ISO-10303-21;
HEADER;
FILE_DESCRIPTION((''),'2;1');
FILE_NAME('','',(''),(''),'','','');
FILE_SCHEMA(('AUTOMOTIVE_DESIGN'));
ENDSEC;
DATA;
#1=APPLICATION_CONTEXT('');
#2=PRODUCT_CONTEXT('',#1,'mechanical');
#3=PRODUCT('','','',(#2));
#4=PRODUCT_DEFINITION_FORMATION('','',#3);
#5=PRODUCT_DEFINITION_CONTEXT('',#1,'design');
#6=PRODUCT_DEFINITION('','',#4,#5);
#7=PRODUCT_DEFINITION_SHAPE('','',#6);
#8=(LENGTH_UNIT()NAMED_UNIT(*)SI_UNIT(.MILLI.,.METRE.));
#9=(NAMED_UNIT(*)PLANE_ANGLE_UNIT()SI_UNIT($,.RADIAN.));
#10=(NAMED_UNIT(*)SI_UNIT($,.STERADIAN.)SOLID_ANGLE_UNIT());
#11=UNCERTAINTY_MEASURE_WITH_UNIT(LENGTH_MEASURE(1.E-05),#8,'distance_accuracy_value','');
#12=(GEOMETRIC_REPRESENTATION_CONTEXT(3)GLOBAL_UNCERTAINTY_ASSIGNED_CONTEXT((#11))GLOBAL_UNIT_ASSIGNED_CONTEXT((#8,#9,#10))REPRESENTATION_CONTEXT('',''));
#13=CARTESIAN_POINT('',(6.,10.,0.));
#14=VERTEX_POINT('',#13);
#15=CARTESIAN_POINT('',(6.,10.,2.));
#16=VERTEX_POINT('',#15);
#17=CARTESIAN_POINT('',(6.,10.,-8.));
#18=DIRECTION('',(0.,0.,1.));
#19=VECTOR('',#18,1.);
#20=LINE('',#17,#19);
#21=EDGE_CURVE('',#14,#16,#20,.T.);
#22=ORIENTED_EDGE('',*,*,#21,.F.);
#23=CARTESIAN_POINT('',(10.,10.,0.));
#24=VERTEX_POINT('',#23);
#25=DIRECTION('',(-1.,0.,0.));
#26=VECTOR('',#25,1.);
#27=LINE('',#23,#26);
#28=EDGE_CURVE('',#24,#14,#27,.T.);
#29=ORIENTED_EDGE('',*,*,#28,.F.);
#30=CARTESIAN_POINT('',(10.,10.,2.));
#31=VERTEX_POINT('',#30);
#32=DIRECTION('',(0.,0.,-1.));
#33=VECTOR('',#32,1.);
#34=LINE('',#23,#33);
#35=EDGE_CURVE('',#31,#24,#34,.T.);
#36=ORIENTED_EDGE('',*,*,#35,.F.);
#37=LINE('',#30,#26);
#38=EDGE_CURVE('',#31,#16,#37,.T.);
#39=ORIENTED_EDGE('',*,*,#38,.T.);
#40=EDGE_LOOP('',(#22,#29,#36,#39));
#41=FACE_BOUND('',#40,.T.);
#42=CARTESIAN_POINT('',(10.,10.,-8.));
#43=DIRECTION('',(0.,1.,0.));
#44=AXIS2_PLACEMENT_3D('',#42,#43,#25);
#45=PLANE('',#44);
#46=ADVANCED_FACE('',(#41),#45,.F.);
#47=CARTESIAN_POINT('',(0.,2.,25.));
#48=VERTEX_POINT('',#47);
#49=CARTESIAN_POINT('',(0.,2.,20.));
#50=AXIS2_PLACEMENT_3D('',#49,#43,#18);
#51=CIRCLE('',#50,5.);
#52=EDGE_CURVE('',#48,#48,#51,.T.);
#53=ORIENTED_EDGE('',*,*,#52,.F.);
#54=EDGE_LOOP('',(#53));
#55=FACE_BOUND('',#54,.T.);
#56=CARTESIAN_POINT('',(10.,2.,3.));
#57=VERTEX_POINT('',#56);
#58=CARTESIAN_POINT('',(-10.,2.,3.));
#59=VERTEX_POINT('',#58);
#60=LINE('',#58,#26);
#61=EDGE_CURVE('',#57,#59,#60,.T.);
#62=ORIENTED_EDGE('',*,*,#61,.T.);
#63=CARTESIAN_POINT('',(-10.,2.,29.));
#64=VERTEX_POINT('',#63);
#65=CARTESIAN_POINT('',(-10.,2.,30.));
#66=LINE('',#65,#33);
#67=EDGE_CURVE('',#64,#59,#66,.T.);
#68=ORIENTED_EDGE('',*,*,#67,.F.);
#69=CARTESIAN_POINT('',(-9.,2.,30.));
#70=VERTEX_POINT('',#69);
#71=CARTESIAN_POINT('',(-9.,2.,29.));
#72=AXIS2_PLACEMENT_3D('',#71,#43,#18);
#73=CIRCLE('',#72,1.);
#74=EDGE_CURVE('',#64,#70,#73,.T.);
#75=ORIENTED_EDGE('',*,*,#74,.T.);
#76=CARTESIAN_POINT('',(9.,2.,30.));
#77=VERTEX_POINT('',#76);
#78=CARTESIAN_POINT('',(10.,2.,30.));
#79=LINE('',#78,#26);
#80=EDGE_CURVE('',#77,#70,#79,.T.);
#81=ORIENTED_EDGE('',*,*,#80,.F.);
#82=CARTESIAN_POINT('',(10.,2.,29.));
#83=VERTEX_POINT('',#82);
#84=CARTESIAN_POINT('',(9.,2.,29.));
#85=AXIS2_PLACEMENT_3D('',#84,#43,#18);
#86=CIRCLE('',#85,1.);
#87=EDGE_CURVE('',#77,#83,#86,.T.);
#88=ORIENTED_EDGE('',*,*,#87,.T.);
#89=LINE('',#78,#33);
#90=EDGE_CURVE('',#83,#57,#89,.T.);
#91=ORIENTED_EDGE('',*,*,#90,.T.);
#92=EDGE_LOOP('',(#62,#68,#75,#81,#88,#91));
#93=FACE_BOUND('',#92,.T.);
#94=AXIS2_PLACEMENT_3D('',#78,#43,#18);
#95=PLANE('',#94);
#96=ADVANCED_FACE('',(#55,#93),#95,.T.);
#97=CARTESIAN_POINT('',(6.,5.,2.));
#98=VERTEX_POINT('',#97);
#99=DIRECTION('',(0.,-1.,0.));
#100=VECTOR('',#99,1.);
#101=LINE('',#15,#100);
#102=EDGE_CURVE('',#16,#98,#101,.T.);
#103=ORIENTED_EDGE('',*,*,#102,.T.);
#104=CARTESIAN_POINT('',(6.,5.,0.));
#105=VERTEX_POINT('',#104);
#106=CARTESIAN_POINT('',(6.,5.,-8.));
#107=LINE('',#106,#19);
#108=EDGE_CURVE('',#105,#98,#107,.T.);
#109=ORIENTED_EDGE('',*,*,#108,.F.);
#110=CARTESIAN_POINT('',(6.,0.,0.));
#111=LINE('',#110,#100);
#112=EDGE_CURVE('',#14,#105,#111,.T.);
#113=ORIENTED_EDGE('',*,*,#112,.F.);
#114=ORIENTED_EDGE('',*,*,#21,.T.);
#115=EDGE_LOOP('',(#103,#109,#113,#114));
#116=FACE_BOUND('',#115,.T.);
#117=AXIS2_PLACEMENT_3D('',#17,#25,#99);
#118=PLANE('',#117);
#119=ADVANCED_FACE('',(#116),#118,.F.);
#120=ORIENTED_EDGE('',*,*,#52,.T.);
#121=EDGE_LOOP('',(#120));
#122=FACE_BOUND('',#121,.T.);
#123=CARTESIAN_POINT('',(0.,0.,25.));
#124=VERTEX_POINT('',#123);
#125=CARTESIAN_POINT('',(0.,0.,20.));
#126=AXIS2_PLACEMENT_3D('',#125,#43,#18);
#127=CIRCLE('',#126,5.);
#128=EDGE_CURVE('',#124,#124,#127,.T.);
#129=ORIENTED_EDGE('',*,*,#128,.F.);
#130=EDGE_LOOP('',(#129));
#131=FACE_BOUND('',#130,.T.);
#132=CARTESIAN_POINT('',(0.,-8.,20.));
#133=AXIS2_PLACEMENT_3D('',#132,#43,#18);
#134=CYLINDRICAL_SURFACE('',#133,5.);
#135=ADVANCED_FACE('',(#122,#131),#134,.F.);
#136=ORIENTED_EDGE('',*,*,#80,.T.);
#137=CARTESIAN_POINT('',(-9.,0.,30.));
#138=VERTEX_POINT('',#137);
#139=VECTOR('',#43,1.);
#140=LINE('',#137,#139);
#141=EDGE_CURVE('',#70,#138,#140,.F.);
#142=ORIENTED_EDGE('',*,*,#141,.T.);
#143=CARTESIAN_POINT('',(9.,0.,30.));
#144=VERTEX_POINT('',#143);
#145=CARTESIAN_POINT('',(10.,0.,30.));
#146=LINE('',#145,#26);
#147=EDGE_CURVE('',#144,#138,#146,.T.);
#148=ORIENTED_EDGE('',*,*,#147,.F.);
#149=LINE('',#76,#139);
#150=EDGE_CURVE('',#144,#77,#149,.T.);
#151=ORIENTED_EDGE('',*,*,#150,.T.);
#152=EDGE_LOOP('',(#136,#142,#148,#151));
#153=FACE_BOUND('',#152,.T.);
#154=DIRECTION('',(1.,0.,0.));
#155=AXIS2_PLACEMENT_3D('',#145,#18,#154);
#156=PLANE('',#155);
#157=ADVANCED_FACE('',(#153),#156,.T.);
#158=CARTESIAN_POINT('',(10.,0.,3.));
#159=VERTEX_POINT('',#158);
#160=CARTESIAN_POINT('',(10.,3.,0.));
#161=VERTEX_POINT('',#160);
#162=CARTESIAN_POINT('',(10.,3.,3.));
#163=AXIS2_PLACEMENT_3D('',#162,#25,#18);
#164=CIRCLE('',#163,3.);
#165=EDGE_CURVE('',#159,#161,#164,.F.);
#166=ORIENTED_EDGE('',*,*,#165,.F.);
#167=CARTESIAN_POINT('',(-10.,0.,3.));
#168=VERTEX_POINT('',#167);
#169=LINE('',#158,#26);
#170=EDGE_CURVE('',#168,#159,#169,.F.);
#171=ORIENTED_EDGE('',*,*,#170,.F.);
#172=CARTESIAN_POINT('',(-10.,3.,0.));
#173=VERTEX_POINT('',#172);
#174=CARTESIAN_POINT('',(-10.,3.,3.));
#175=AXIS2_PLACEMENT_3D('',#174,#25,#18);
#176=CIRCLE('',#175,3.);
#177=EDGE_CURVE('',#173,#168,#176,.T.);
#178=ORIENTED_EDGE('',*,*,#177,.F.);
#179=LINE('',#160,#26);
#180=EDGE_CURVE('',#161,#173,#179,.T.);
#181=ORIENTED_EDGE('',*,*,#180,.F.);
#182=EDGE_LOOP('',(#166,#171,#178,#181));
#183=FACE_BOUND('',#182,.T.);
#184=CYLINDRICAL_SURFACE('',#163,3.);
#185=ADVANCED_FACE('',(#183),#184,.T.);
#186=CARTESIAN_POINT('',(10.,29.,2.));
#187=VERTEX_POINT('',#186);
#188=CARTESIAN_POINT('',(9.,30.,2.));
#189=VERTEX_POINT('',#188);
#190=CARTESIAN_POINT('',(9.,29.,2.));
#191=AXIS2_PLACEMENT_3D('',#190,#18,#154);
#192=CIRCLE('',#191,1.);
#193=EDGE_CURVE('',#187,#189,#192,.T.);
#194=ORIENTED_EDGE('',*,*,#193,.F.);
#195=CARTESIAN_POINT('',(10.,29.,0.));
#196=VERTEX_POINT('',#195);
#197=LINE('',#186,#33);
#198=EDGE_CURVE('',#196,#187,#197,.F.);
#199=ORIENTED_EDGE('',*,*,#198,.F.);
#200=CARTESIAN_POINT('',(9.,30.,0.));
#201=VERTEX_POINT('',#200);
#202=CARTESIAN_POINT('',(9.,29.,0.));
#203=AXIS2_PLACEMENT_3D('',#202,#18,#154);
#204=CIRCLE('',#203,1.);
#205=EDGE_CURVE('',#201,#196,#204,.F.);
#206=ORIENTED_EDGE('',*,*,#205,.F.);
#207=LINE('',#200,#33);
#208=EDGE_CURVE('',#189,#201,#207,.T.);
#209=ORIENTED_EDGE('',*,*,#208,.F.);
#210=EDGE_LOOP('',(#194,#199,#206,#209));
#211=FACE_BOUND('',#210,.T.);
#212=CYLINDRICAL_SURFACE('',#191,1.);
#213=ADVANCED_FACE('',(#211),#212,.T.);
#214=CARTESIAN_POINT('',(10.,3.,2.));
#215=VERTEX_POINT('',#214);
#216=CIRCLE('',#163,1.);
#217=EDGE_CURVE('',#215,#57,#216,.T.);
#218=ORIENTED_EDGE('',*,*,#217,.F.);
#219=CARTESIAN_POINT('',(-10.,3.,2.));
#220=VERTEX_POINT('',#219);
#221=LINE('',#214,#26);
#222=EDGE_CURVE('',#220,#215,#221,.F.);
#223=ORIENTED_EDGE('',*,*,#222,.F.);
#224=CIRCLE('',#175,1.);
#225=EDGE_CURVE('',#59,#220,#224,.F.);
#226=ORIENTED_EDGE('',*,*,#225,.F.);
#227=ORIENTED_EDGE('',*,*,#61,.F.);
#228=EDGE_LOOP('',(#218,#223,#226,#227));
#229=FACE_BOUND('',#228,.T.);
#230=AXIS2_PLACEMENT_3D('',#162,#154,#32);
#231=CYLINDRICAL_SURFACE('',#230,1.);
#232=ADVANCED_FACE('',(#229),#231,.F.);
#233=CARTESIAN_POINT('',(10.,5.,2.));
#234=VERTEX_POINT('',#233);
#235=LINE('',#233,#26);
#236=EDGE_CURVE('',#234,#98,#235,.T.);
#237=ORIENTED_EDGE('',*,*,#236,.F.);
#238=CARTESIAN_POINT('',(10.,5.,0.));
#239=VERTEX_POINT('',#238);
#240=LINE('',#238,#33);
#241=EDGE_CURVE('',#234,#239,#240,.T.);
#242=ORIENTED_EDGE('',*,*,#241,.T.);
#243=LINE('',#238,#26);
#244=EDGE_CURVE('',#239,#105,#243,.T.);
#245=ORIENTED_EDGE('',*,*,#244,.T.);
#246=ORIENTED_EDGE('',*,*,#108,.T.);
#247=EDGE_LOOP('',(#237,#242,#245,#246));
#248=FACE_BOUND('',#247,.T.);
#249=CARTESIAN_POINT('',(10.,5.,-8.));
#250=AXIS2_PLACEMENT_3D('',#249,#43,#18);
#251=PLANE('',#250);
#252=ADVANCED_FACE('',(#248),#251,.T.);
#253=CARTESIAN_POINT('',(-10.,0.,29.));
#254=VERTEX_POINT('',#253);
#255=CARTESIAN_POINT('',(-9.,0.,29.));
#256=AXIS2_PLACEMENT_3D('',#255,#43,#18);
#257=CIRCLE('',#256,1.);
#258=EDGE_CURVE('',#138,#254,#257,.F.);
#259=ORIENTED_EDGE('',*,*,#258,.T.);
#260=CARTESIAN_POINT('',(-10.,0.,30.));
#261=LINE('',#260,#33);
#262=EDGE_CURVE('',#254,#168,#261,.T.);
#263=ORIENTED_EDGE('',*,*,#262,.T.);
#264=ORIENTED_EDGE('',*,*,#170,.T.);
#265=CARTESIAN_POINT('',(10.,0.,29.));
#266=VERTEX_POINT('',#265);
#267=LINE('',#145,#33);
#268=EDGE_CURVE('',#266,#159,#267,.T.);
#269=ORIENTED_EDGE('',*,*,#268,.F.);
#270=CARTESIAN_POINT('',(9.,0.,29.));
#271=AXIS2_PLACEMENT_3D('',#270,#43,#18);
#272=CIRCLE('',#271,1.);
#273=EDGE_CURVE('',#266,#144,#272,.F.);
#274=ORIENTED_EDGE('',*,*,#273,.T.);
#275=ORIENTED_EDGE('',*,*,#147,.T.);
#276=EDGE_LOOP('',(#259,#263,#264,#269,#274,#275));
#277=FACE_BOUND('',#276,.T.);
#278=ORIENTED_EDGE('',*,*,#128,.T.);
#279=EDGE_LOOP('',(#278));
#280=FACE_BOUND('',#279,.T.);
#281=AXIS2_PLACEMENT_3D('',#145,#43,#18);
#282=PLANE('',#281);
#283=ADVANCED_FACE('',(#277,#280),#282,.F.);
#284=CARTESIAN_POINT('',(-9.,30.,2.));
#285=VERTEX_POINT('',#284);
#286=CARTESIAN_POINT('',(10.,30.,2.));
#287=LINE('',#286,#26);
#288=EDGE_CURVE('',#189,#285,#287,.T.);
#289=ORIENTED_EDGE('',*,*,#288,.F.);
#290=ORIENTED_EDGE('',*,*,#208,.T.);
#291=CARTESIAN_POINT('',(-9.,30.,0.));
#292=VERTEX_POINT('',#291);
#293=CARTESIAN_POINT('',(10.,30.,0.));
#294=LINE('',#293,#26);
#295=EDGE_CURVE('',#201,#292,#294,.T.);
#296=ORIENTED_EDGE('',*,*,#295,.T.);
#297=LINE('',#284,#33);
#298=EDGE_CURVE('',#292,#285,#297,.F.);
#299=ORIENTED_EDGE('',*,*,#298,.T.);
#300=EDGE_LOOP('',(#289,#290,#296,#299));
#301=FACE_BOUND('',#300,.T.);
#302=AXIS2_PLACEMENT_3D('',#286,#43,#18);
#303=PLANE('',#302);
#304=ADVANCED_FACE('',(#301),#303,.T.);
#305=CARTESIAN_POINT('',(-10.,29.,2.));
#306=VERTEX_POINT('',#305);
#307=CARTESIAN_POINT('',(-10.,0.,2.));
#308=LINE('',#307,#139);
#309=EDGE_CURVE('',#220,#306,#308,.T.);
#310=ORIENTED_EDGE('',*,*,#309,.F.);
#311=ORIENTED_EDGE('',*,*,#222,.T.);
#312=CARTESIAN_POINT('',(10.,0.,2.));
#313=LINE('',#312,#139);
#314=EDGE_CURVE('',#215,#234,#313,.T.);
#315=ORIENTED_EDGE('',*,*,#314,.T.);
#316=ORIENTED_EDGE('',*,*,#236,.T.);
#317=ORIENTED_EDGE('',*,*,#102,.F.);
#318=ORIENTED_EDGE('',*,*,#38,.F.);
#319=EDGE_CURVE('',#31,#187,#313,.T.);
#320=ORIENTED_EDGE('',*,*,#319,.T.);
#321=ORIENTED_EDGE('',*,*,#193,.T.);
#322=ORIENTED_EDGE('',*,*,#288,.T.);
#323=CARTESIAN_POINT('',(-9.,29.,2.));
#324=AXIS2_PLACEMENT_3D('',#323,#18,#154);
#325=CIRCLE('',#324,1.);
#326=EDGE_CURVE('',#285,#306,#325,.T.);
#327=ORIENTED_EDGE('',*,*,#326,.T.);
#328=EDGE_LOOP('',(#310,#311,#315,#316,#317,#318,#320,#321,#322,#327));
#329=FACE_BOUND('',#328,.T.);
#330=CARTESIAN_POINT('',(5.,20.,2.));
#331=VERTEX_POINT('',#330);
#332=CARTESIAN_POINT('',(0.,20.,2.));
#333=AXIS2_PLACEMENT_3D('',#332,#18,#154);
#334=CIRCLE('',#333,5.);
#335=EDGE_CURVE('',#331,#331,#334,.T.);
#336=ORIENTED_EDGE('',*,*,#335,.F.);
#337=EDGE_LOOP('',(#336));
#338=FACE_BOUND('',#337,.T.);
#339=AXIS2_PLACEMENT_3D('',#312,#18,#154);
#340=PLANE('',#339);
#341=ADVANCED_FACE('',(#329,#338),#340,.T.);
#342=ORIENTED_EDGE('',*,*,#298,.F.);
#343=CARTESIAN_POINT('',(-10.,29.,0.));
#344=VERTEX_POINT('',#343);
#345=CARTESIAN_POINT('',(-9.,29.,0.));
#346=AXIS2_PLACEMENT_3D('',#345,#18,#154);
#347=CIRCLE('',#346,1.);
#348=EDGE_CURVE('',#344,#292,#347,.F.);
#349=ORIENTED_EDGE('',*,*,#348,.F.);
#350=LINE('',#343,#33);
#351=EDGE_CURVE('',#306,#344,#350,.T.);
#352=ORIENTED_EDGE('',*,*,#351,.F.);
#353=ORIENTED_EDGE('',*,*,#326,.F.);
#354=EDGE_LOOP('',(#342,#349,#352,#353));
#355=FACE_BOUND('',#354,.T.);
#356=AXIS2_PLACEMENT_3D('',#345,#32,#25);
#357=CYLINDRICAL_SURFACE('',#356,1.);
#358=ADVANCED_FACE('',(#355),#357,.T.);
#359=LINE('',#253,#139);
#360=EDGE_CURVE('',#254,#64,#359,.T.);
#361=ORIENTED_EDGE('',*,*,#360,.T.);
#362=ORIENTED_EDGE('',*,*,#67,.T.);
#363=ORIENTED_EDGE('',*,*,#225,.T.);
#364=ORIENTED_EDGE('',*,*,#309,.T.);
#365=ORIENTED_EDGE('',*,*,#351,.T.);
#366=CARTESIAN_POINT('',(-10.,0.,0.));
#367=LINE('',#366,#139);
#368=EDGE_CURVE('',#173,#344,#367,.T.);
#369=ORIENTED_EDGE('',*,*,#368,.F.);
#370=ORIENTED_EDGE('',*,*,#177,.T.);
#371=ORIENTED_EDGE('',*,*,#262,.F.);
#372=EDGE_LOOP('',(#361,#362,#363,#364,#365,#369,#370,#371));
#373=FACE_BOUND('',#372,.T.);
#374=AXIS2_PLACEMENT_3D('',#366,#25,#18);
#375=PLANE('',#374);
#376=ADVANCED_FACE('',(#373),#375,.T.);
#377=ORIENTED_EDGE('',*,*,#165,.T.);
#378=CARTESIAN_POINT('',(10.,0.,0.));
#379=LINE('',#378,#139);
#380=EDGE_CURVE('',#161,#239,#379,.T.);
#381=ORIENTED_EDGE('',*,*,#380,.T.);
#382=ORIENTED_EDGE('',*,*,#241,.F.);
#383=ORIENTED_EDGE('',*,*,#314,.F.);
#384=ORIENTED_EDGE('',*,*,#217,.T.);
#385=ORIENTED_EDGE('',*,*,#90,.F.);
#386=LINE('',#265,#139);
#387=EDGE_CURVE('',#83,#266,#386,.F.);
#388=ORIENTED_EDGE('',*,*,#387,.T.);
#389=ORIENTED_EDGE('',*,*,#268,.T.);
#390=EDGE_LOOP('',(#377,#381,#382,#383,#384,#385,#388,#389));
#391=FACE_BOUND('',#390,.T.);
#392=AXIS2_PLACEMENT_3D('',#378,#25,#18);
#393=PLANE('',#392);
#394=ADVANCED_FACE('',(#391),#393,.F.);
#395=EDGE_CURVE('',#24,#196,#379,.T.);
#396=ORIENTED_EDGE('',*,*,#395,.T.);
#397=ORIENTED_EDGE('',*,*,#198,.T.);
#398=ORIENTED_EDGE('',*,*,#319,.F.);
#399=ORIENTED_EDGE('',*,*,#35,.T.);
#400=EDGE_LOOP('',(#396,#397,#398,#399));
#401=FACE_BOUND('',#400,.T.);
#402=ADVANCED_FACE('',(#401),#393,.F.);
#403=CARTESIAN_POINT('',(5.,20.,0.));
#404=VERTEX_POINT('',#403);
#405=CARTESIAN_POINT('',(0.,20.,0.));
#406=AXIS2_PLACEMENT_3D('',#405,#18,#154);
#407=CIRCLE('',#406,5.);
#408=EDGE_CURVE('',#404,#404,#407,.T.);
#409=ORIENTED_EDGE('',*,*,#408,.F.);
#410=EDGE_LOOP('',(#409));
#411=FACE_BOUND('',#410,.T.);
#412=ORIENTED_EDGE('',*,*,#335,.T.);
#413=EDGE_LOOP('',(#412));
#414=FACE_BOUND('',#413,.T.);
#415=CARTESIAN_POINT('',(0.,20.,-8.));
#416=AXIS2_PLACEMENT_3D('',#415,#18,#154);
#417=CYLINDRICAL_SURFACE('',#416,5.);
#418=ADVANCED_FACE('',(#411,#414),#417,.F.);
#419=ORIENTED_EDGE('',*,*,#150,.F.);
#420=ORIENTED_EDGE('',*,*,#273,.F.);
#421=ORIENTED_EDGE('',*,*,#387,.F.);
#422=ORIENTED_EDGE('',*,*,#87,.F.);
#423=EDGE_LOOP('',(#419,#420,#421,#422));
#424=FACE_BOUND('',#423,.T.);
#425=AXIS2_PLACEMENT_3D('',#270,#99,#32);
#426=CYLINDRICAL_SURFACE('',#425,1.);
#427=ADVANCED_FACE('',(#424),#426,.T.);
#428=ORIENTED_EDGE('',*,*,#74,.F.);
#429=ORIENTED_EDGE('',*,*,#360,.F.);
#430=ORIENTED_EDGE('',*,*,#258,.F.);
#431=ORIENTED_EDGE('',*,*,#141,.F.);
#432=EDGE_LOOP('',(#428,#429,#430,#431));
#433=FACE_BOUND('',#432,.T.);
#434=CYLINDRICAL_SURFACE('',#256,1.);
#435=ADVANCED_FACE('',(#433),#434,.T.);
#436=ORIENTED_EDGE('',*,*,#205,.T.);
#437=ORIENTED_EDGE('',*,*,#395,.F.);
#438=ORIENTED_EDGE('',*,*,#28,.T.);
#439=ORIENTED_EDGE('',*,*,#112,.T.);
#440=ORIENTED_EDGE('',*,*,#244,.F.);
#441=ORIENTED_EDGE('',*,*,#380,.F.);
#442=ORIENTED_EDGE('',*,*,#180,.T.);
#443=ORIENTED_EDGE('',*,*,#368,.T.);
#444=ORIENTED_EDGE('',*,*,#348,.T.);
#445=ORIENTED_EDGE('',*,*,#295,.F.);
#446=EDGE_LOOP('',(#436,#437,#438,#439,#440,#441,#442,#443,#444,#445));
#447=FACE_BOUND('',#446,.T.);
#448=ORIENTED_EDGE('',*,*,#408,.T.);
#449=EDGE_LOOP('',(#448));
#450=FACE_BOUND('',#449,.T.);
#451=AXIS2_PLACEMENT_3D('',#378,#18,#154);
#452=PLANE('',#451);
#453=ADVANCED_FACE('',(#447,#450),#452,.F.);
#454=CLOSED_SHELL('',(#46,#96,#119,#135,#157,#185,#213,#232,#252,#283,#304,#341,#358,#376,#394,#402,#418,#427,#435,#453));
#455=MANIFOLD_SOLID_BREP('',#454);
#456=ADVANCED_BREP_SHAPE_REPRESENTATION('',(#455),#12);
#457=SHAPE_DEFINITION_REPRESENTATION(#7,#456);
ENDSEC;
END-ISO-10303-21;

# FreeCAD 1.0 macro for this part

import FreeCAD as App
import Part
import Sketcher
Q = App.Units.Quantity


def edges_at(feature, points):
    """Names of the edges that pass closest to the given points."""
    edges = feature.Shape.Edges
    near = lambda p: min(range(len(edges)), key=lambda i: edges[i].distToShape(Part.Vertex(*p))[0])
    return sorted({f"Edge{near(p) + 1}" for p in points})


def add_polygon(sketch, points):
    """Adds a closed chain of lines whose ends are joined by coincident constraints."""
    first, n = sketch.GeometryCount, len(points)
    for a, b in zip(points, points[1:] + points[:1]):
        sketch.addGeometry(Part.LineSegment(App.Vector(*a, 0), App.Vector(*b, 0)), False)
    for i in range(n):
        sketch.addConstraint(Sketcher.Constraint("Coincident", first + i, 2, first + (i + 1) % n, 1))

doc = App.newDocument("Part")
body = doc.addObject("PartDesign::Body", "Body")

sketch1 = body.newObject("Sketcher::SketchObject", "Sketch")
sketch1.AttachmentSupport = (doc.getObject("YZ_Plane"), [""])
sketch1.MapMode = "FlatFace"
add_polygon(sketch1, [(0, 30), (0, 0), (30, 0), (30, 2), (2, 2), (2, 30)])
sketch1.addConstraint([
    Sketcher.Constraint("Vertical", 0),
    Sketcher.Constraint("Horizontal", 1),
    Sketcher.Constraint("Vertical", 2),
    Sketcher.Constraint("Horizontal", 3),
    Sketcher.Constraint("Vertical", 4),
    Sketcher.Constraint("Horizontal", 5),
    Sketcher.Constraint("Coincident", 0, 2, -1, 1),
    Sketcher.Constraint("Equal", 1, 0),
    Sketcher.Constraint("Equal", 5, 2),
    Sketcher.Constraint("DistanceX", 1, 1, 1, 2, Q("30 mm")),
    Sketcher.Constraint("DistanceX", 3, 2, 3, 1, Q("28 mm")),
])
pad1 = body.newObject("PartDesign::Pad", "Pad")
pad1.Profile = sketch1
pad1.Length = 20
pad1.Midplane = True

sketch2 = body.newObject("Sketcher::SketchObject", "Sketch001")
sketch2.AttachmentSupport = (doc.getObject("XY_Plane"), [""])
sketch2.MapMode = "FlatFace"
sketch2.AttachmentOffset = App.Placement(App.Vector(0, 0, 2), App.Rotation())
add_polygon(sketch2, [(6, 10), (6, 5), (10, 5), (10, 10)])
sketch2.addConstraint([
    Sketcher.Constraint("Vertical", 0),
    Sketcher.Constraint("Horizontal", 1),
    Sketcher.Constraint("Vertical", 2),
    Sketcher.Constraint("Horizontal", 3),
    Sketcher.Constraint("DistanceX", 1, 1, 1, 2, Q("4 mm")),
    Sketcher.Constraint("DistanceY", 0, 2, 0, 1, Q("5 mm")),
    Sketcher.Constraint("DistanceX", -1, 1, 0, 2, Q("6 mm")),
    Sketcher.Constraint("DistanceY", -1, 1, 0, 2, Q("5 mm")),
])
pocket1 = body.newObject("PartDesign::Pocket", "Pocket")
pocket1.Profile = sketch2
pocket1.Length = 10
doc.recompute()

fillet = body.newObject("PartDesign::Fillet", "Fillet")
fillet.Base = (pocket1, edges_at(pocket1, [(0, 0, 0)]))
fillet.Radius = 3
doc.recompute()

fillet2 = body.newObject("PartDesign::Fillet", "Fillet001")
fillet2.Base = (fillet, edges_at(fillet, [(0, 2, 2)]))
fillet2.Radius = 1

sketch3 = body.newObject("Sketcher::SketchObject", "Sketch002")
sketch3.AttachmentSupport = (doc.getObject("XY_Plane"), [""])
sketch3.MapMode = "FlatFace"
sketch3.AttachmentOffset = App.Placement(App.Vector(0, 0, 2), App.Rotation())
sketch3.addGeometry(Part.Circle(App.Vector(0, 20, 0), App.Vector(0, 0, 1), 5), False)
sketch3.addConstraint([
    Sketcher.Constraint("PointOnObject", 0, 3, -2),
    Sketcher.Constraint("Diameter", 0, Q("10 mm")),
    Sketcher.Constraint("DistanceY", -1, 1, 0, 3, Q("20 mm")),
])
pocket2 = body.newObject("PartDesign::Pocket", "Pocket001")
pocket2.Profile = sketch3
pocket2.Length = 10

sketch4 = body.newObject("Sketcher::SketchObject", "Sketch003")
sketch4.AttachmentSupport = (doc.getObject("XZ_Plane"), [""])
sketch4.MapMode = "FlatFace"
sketch4.AttachmentOffset = App.Placement(App.Vector(0, 0, -2), App.Rotation())
sketch4.addGeometry(Part.Circle(App.Vector(0, 20, 0), App.Vector(0, 0, 1), 5), False)
sketch4.addConstraint([
    Sketcher.Constraint("PointOnObject", 0, 3, -2),
    Sketcher.Constraint("Diameter", 0, Q("10 mm")),
    Sketcher.Constraint("DistanceY", -1, 1, 0, 3, Q("20 mm")),
])
pocket3 = body.newObject("PartDesign::Pocket", "Pocket002")
pocket3.Profile = sketch4
pocket3.Length = 10
pocket3.Reversed = True
doc.recompute()

fillet3 = body.newObject("PartDesign::Fillet", "Fillet002")
fillet3.Base = (pocket3, edges_at(pocket3, [
    (10, 1, 30),
    (-10, 1, 30),
    (-10, 30, 1),
    (10, 30, 1),
]))
fillet3.Radius = 1

doc.recompute()
